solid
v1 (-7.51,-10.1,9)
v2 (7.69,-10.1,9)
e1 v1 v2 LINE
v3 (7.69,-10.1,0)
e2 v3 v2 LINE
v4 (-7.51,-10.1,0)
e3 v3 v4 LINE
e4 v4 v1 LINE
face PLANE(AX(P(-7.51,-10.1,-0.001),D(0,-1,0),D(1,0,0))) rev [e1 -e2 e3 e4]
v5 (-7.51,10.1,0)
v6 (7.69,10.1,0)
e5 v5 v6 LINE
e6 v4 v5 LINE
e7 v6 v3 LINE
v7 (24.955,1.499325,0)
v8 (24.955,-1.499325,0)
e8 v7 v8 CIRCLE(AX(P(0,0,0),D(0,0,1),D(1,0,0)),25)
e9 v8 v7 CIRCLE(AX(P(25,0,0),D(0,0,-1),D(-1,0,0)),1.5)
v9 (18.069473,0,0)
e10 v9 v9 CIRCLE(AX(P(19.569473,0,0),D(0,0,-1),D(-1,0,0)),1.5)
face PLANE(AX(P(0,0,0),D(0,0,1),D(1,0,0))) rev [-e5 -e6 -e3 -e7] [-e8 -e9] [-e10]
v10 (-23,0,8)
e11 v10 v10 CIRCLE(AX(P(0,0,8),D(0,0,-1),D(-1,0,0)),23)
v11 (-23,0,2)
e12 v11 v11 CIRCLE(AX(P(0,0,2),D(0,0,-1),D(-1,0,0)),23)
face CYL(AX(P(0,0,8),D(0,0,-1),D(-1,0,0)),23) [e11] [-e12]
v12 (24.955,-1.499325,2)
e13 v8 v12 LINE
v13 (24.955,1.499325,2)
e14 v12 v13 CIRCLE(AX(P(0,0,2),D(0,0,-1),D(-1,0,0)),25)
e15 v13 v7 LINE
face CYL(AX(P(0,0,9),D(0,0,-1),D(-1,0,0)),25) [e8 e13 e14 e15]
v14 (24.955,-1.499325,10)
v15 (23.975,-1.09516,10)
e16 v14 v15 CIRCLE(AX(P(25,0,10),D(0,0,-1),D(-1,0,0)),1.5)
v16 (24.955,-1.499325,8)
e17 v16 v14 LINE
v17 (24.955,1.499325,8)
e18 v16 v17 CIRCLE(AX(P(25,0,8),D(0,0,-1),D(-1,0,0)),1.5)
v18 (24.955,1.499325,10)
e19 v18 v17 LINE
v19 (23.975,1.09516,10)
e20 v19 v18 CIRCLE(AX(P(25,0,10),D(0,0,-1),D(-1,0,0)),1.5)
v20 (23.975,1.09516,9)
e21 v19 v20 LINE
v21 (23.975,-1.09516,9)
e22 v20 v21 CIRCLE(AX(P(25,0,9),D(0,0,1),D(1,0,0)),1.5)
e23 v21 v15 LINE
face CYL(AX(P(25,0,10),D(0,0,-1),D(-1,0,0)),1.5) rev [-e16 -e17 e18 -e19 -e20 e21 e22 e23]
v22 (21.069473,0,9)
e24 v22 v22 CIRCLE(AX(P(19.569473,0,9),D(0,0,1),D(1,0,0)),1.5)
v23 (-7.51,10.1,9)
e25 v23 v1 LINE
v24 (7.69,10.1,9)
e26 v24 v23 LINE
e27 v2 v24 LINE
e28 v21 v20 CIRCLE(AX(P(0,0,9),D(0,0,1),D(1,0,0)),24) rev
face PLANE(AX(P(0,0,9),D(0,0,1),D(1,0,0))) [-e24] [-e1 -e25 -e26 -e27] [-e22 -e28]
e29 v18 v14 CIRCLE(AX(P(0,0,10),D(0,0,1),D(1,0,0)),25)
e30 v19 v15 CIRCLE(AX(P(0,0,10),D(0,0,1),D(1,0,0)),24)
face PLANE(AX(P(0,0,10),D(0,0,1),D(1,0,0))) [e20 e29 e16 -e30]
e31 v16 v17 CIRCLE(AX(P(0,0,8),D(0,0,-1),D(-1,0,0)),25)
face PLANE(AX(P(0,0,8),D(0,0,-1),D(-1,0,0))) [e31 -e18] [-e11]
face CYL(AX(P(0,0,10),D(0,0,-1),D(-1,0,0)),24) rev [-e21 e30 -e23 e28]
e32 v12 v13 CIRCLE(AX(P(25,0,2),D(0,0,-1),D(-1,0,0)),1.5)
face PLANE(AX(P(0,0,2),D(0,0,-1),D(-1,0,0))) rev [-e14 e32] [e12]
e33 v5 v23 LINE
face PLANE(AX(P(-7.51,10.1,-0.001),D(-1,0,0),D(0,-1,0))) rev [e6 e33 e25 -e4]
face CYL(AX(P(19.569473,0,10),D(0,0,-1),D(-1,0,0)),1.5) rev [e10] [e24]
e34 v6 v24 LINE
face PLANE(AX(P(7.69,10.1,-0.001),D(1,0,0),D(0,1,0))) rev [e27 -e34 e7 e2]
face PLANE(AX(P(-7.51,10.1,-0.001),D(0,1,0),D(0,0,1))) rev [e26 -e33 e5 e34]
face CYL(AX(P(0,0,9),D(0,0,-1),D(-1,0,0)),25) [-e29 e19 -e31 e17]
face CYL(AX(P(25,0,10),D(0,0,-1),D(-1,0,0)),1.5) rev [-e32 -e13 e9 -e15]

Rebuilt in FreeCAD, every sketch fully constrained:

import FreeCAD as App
import Part
import Sketcher

V = App.Vector

doc = App.newDocument("Part")
params = doc.addObject("Spreadsheet::Sheet", "Params")
for row, (alias, value) in enumerate([
    ("sketch1_diameter", "50 mm"),
    ("pad1_length", "9 mm"),
    ("sketch2_diameter", "50 mm"),
    ("sketch2_diameter2", "48 mm"),
    ("pad2_length", "1 mm"),
    ("sketch3_width", "15.2 mm"),
    ("sketch3_height", "20.2 mm"),
    ("sketch4_diameter", "50 mm"),
    ("sketch4_diameter2", "46 mm"),
    ("pocket2_length", "6 mm"),
    ("sketch5_diameter", "3 mm"),
    ("sketch6_diameter", "3 mm"),
], start=1):
    params.set(f"A{row}", alias)
    params.set(f"B{row}", "=" + value)
    params.setAlias(f"B{row}", alias)

body = doc.addObject("PartDesign::Body", "Body")

sketch1 = body.newObject("Sketcher::SketchObject", "Sketch")
sketch1.AttachmentSupport = (doc.getObject("XY_Plane"), [""])
sketch1.MapMode = "FlatFace"
sketch1.addGeometry(Part.Circle(V(0, 0, 0), V(0, 0, 1), 25), False)
sketch1.addConstraint([
    Sketcher.Constraint("Coincident", 0, 3, -1, 1),
    Sketcher.Constraint("Diameter", 0, 50.0),
])
sketch1.setExpression("Constraints[1]", "Params.sketch1_diameter")
pad1 = body.newObject("PartDesign::Pad", "Pad")
pad1.Profile = sketch1
pad1.setExpression("Length", "Params.pad1_length")

sketch2 = body.newObject("Sketcher::SketchObject", "Sketch001")
sketch2.AttachmentSupport = (doc.getObject("XY_Plane"), [""])
sketch2.MapMode = "FlatFace"
sketch2.AttachmentOffset = App.Placement(V(0, 0, 9), App.Rotation())
sketch2.addGeometry([
    Part.Circle(V(0, 0, 0), V(0, 0, 1), 25),
    Part.Circle(V(0, 0, 0), V(0, 0, 1), 24),
], False)
sketch2.addConstraint([
    Sketcher.Constraint("Coincident", 0, 3, -1, 1),
    Sketcher.Constraint("Coincident", 1, 3, -1, 1),
    Sketcher.Constraint("Diameter", 0, 50.0),
    Sketcher.Constraint("Diameter", 1, 48.0),
])
sketch2.setExpression("Constraints[2]", "Params.sketch2_diameter")
sketch2.setExpression("Constraints[3]", "Params.sketch2_diameter2")
pad2 = body.newObject("PartDesign::Pad", "Pad001")
pad2.Profile = sketch2
pad2.setExpression("Length", "Params.pad2_length")

sketch3 = body.newObject("Sketcher::SketchObject", "Sketch002")
sketch3.AttachmentSupport = (doc.getObject("XY_Plane"), [""])
sketch3.MapMode = "FlatFace"
sketch3.AttachmentOffset = App.Placement(V(0, 0, 9), App.Rotation())
sketch3.addGeometry([
    Part.LineSegment(V(-8, 10, 0), V(-8, -10, 0)),
    Part.LineSegment(V(-8, -10, 0), V(8, -10, 0)),
    Part.LineSegment(V(8, -10, 0), V(8, 10, 0)),
    Part.LineSegment(V(8, 10, 0), V(-8, 10, 0)),
], False)
sketch3.addConstraint([
    Sketcher.Constraint("Coincident", 0, 2, 1, 1),
    Sketcher.Constraint("Coincident", 1, 2, 2, 1),
    Sketcher.Constraint("Coincident", 2, 2, 3, 1),
    Sketcher.Constraint("Coincident", 3, 2, 0, 1),
    Sketcher.Constraint("Vertical", 0),
    Sketcher.Constraint("Horizontal", 1),
    Sketcher.Constraint("Vertical", 2),
    Sketcher.Constraint("Horizontal", 3),
    Sketcher.Constraint("DistanceX", 1, 1, 1, 2, 15.2),
    Sketcher.Constraint("DistanceY", 0, 2, 0, 1, 20.2),
    Sketcher.Constraint("DistanceY", 0, 2, -1, 1, 10.1),
    Sketcher.Constraint("DistanceX", 0, 2, -1, 1, 7.51),
])
sketch3.setExpression("Constraints[8]", "Params.sketch3_width")
sketch3.setExpression("Constraints[9]", "Params.sketch3_height")
pocket1 = body.newObject("PartDesign::Pocket", "Pocket")
pocket1.Profile = sketch3
pocket1.Type = "UpToFirst"

sketch4 = body.newObject("Sketcher::SketchObject", "Sketch003")
sketch4.AttachmentSupport = (doc.getObject("XY_Plane"), [""])
sketch4.MapMode = "FlatFace"
sketch4.AttachmentOffset = App.Placement(V(0, 0, 2), App.Rotation())
sketch4.addGeometry([
    Part.Circle(V(0, 0, 0), V(0, 0, 1), 25),
    Part.Circle(V(0, 0, 0), V(0, 0, 1), 23),
], False)
sketch4.addConstraint([
    Sketcher.Constraint("Coincident", 0, 3, -1, 1),
    Sketcher.Constraint("Coincident", 1, 3, -1, 1),
    Sketcher.Constraint("Diameter", 0, 50.0),
    Sketcher.Constraint("Diameter", 1, 46.0),
])
sketch4.setExpression("Constraints[2]", "Params.sketch4_diameter")
sketch4.setExpression("Constraints[3]", "Params.sketch4_diameter2")
pocket2 = body.newObject("PartDesign::Pocket", "Pocket001")
pocket2.Profile = sketch4
pocket2.setExpression("Length", "Params.pocket2_length")
pocket2.Reversed = True

sketch5 = body.newObject("Sketcher::SketchObject", "Sketch004")
sketch5.AttachmentSupport = (doc.getObject("XY_Plane"), [""])
sketch5.MapMode = "FlatFace"
sketch5.addGeometry(Part.Circle(V(19.6, 0, 0), V(0, 0, 1), 1.5), False)
sketch5.addConstraint([
    Sketcher.Constraint("PointOnObject", 0, 3, -1),
    Sketcher.Constraint("Diameter", 0, 3.0),
    Sketcher.Constraint("DistanceX", -1, 1, 0, 3, 19.569473),
])
sketch5.setExpression("Constraints[1]", "Params.sketch5_diameter")
pocket3 = body.newObject("PartDesign::Pocket", "Pocket002")
pocket3.Profile = sketch5
pocket3.Type = "ThroughAll"
pocket3.Reversed = True

sketch6 = body.newObject("Sketcher::SketchObject", "Sketch005")
sketch6.AttachmentSupport = (doc.getObject("XY_Plane"), [""])
sketch6.MapMode = "FlatFace"
sketch6.addGeometry(Part.Circle(V(25, 0, 0), V(0, 0, 1), 1.5), False)
sketch6.addConstraint([
    Sketcher.Constraint("PointOnObject", 0, 3, -1),
    Sketcher.Constraint("Diameter", 0, 3.0),
    Sketcher.Constraint("DistanceX", -1, 1, 0, 3, 25.0),
])
sketch6.setExpression("Constraints[1]", "Params.sketch6_diameter")
pocket4 = body.newObject("PartDesign::Pocket", "Pocket003")
pocket4.Profile = sketch6
pocket4.Type = "ThroughAll"
pocket4.Reversed = True

doc.recompute()
